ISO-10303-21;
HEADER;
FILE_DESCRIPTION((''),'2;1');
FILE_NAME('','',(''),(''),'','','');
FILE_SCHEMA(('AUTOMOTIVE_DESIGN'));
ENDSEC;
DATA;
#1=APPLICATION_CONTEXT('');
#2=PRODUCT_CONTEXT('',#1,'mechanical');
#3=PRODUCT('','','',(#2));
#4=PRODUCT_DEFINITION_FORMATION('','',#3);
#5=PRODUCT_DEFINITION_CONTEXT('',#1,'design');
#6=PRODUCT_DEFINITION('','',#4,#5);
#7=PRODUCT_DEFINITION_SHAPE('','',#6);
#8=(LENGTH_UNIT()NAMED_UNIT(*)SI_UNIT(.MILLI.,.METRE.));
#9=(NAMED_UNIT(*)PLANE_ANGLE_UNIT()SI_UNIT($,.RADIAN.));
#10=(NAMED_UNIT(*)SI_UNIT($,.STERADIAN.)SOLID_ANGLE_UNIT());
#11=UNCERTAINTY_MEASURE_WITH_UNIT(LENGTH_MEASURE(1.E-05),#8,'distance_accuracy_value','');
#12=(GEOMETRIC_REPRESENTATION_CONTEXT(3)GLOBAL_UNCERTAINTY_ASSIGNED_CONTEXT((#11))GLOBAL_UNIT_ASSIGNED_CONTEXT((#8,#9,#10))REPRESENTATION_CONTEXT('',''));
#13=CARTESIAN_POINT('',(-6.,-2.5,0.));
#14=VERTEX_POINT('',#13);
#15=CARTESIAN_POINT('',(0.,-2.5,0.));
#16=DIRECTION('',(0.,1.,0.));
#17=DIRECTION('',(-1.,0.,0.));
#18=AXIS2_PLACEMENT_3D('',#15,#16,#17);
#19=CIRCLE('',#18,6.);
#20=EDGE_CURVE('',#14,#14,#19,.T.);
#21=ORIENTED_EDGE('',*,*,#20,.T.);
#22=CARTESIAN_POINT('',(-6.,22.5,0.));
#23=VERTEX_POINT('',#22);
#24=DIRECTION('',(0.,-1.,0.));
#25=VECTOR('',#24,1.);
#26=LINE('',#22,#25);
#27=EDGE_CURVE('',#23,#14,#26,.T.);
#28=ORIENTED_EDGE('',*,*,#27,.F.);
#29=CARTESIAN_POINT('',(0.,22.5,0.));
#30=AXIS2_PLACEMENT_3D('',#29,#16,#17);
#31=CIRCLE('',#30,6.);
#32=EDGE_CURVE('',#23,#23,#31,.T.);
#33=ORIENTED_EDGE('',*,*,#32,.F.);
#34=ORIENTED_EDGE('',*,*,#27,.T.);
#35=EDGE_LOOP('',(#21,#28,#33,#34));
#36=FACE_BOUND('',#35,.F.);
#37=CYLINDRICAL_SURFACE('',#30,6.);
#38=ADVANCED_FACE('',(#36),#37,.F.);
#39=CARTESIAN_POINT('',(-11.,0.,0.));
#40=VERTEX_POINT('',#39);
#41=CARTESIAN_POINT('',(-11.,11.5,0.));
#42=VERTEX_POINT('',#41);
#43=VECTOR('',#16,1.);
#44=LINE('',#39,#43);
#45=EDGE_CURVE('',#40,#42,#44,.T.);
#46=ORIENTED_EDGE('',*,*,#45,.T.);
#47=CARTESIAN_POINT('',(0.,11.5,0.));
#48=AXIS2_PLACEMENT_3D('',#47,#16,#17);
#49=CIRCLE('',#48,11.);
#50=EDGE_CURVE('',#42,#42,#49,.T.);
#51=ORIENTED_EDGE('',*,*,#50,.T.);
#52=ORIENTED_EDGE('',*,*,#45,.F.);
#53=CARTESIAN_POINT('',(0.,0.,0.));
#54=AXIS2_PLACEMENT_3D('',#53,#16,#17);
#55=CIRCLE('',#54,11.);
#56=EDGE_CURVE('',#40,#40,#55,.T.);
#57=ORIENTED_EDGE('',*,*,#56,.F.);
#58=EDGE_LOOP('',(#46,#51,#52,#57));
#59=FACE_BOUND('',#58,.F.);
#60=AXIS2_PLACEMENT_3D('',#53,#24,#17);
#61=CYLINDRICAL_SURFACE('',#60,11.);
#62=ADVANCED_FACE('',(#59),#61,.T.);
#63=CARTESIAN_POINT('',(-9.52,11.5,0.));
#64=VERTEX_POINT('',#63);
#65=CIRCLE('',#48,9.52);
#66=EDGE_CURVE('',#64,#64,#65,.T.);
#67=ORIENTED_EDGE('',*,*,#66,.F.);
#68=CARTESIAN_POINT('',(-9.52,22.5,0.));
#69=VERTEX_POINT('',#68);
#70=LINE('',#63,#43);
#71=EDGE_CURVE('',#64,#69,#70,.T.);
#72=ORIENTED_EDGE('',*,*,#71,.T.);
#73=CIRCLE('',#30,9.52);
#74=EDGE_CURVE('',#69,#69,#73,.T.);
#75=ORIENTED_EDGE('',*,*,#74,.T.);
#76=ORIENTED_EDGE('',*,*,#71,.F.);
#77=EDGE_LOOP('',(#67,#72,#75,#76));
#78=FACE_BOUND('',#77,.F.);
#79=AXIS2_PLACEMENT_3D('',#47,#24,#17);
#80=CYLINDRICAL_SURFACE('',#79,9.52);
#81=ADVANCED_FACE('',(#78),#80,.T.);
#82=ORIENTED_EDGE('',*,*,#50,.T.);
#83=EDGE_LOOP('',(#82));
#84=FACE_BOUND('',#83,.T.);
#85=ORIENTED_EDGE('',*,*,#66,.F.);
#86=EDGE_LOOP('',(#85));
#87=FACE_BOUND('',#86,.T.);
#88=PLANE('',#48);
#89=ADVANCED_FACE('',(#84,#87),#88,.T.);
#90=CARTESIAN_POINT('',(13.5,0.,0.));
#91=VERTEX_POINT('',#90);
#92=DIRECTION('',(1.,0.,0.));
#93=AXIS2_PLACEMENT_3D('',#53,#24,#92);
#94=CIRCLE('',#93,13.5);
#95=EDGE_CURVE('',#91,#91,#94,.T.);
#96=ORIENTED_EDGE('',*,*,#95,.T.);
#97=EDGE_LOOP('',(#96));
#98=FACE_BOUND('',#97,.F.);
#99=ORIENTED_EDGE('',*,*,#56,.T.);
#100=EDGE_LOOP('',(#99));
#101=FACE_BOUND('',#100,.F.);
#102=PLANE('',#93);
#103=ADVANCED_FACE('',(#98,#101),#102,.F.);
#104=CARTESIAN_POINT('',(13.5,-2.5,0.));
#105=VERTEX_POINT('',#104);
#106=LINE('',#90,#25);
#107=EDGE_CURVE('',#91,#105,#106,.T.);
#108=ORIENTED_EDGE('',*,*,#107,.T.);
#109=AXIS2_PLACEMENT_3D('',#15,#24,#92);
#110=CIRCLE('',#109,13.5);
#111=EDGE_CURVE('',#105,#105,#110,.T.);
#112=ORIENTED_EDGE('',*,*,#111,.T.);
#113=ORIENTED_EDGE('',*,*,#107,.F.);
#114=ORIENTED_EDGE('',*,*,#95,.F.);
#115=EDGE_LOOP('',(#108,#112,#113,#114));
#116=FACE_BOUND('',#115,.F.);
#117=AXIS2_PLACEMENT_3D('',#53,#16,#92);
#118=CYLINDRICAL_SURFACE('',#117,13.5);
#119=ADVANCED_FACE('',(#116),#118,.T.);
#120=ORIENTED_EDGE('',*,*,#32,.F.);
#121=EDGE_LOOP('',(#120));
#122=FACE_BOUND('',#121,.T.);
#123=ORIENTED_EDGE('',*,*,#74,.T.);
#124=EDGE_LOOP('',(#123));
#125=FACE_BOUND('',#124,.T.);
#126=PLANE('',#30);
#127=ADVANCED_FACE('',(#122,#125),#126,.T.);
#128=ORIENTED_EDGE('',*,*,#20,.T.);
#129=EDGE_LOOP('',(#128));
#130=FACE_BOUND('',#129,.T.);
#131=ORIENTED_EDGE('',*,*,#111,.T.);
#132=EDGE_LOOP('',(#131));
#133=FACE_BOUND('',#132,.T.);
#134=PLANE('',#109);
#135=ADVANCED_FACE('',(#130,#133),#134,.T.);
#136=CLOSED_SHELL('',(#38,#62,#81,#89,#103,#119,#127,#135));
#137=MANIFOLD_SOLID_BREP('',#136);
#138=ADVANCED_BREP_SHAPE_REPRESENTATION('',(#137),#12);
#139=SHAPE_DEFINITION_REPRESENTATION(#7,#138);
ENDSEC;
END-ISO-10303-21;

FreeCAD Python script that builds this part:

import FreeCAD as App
import Part
import Sketcher
from FreeCAD import Vector

doc = App.newDocument("Part")
body = doc.addObject("PartDesign::Body", "Body")

# Sketch on XZ plane
sketch1 = body.newObject("Sketcher::SketchObject", "Sketch")
sketch1.AttachmentSupport = (doc.getObject("XZ_Plane"), [""])
sketch1.MapMode = "FlatFace"
sketch1.addGeometry(Part.Circle(Vector(0, 0, 0), Vector(0, 0, 1), 14), False)
sketch1.addConstraint(Sketcher.Constraint("Coincident", 0, 3, -1, 1))
sketch1.addConstraint(Sketcher.Constraint("Diameter", 0, 27.0))
pad1 = body.newObject("PartDesign::Pad", "Pad")
pad1.Profile = sketch1
pad1.Length = 2.5

# Sketch on XZ plane
sketch2 = body.newObject("Sketcher::SketchObject", "Sketch001")
sketch2.AttachmentSupport = (doc.getObject("XZ_Plane"), [""])
sketch2.MapMode = "FlatFace"
sketch2.addGeometry(Part.Circle(Vector(0, 0, 0), Vector(0, 0, 1), 11), False)
sketch2.addConstraint(Sketcher.Constraint("Coincident", 0, 3, -1, 1))
sketch2.addConstraint(Sketcher.Constraint("Diameter", 0, 22.0))
pad2 = body.newObject("PartDesign::Pad", "Pad001")
pad2.Profile = sketch2
pad2.Length = 11.5
pad2.Reversed = True

# Sketch on XZ plane
sketch3 = body.newObject("Sketcher::SketchObject", "Sketch002")
sketch3.AttachmentSupport = (doc.getObject("XZ_Plane"), [""])
sketch3.MapMode = "FlatFace"
sketch3.AttachmentOffset = App.Placement(Vector(0, 0, -11.5), App.Rotation())
sketch3.addGeometry(Part.Circle(Vector(0, 0, 0), Vector(0, 0, 1), 10), False)
sketch3.addConstraint(Sketcher.Constraint("Coincident", 0, 3, -1, 1))
sketch3.addConstraint(Sketcher.Constraint("Diameter", 0, 19.04))
pad3 = body.newObject("PartDesign::Pad", "Pad002")
pad3.Profile = sketch3
pad3.Length = 11
pad3.Reversed = True

# Sketch on XZ plane
sketch4 = body.newObject("Sketcher::SketchObject", "Sketch003")
sketch4.AttachmentSupport = (doc.getObject("XZ_Plane"), [""])
sketch4.MapMode = "FlatFace"
sketch4.AttachmentOffset = App.Placement(Vector(0, 0, -22.5), App.Rotation())
sketch4.addGeometry(Part.Circle(Vector(0, 0, 0), Vector(0, 0, 1), 6), False)
sketch4.addConstraint(Sketcher.Constraint("Coincident", 0, 3, -1, 1))
sketch4.addConstraint(Sketcher.Constraint("Diameter", 0, 12.0))
pocket1 = body.newObject("PartDesign::Pocket", "Pocket")
pocket1.Profile = sketch4
pocket1.Length = 25
pocket1.Reversed = True

doc.recompute()
